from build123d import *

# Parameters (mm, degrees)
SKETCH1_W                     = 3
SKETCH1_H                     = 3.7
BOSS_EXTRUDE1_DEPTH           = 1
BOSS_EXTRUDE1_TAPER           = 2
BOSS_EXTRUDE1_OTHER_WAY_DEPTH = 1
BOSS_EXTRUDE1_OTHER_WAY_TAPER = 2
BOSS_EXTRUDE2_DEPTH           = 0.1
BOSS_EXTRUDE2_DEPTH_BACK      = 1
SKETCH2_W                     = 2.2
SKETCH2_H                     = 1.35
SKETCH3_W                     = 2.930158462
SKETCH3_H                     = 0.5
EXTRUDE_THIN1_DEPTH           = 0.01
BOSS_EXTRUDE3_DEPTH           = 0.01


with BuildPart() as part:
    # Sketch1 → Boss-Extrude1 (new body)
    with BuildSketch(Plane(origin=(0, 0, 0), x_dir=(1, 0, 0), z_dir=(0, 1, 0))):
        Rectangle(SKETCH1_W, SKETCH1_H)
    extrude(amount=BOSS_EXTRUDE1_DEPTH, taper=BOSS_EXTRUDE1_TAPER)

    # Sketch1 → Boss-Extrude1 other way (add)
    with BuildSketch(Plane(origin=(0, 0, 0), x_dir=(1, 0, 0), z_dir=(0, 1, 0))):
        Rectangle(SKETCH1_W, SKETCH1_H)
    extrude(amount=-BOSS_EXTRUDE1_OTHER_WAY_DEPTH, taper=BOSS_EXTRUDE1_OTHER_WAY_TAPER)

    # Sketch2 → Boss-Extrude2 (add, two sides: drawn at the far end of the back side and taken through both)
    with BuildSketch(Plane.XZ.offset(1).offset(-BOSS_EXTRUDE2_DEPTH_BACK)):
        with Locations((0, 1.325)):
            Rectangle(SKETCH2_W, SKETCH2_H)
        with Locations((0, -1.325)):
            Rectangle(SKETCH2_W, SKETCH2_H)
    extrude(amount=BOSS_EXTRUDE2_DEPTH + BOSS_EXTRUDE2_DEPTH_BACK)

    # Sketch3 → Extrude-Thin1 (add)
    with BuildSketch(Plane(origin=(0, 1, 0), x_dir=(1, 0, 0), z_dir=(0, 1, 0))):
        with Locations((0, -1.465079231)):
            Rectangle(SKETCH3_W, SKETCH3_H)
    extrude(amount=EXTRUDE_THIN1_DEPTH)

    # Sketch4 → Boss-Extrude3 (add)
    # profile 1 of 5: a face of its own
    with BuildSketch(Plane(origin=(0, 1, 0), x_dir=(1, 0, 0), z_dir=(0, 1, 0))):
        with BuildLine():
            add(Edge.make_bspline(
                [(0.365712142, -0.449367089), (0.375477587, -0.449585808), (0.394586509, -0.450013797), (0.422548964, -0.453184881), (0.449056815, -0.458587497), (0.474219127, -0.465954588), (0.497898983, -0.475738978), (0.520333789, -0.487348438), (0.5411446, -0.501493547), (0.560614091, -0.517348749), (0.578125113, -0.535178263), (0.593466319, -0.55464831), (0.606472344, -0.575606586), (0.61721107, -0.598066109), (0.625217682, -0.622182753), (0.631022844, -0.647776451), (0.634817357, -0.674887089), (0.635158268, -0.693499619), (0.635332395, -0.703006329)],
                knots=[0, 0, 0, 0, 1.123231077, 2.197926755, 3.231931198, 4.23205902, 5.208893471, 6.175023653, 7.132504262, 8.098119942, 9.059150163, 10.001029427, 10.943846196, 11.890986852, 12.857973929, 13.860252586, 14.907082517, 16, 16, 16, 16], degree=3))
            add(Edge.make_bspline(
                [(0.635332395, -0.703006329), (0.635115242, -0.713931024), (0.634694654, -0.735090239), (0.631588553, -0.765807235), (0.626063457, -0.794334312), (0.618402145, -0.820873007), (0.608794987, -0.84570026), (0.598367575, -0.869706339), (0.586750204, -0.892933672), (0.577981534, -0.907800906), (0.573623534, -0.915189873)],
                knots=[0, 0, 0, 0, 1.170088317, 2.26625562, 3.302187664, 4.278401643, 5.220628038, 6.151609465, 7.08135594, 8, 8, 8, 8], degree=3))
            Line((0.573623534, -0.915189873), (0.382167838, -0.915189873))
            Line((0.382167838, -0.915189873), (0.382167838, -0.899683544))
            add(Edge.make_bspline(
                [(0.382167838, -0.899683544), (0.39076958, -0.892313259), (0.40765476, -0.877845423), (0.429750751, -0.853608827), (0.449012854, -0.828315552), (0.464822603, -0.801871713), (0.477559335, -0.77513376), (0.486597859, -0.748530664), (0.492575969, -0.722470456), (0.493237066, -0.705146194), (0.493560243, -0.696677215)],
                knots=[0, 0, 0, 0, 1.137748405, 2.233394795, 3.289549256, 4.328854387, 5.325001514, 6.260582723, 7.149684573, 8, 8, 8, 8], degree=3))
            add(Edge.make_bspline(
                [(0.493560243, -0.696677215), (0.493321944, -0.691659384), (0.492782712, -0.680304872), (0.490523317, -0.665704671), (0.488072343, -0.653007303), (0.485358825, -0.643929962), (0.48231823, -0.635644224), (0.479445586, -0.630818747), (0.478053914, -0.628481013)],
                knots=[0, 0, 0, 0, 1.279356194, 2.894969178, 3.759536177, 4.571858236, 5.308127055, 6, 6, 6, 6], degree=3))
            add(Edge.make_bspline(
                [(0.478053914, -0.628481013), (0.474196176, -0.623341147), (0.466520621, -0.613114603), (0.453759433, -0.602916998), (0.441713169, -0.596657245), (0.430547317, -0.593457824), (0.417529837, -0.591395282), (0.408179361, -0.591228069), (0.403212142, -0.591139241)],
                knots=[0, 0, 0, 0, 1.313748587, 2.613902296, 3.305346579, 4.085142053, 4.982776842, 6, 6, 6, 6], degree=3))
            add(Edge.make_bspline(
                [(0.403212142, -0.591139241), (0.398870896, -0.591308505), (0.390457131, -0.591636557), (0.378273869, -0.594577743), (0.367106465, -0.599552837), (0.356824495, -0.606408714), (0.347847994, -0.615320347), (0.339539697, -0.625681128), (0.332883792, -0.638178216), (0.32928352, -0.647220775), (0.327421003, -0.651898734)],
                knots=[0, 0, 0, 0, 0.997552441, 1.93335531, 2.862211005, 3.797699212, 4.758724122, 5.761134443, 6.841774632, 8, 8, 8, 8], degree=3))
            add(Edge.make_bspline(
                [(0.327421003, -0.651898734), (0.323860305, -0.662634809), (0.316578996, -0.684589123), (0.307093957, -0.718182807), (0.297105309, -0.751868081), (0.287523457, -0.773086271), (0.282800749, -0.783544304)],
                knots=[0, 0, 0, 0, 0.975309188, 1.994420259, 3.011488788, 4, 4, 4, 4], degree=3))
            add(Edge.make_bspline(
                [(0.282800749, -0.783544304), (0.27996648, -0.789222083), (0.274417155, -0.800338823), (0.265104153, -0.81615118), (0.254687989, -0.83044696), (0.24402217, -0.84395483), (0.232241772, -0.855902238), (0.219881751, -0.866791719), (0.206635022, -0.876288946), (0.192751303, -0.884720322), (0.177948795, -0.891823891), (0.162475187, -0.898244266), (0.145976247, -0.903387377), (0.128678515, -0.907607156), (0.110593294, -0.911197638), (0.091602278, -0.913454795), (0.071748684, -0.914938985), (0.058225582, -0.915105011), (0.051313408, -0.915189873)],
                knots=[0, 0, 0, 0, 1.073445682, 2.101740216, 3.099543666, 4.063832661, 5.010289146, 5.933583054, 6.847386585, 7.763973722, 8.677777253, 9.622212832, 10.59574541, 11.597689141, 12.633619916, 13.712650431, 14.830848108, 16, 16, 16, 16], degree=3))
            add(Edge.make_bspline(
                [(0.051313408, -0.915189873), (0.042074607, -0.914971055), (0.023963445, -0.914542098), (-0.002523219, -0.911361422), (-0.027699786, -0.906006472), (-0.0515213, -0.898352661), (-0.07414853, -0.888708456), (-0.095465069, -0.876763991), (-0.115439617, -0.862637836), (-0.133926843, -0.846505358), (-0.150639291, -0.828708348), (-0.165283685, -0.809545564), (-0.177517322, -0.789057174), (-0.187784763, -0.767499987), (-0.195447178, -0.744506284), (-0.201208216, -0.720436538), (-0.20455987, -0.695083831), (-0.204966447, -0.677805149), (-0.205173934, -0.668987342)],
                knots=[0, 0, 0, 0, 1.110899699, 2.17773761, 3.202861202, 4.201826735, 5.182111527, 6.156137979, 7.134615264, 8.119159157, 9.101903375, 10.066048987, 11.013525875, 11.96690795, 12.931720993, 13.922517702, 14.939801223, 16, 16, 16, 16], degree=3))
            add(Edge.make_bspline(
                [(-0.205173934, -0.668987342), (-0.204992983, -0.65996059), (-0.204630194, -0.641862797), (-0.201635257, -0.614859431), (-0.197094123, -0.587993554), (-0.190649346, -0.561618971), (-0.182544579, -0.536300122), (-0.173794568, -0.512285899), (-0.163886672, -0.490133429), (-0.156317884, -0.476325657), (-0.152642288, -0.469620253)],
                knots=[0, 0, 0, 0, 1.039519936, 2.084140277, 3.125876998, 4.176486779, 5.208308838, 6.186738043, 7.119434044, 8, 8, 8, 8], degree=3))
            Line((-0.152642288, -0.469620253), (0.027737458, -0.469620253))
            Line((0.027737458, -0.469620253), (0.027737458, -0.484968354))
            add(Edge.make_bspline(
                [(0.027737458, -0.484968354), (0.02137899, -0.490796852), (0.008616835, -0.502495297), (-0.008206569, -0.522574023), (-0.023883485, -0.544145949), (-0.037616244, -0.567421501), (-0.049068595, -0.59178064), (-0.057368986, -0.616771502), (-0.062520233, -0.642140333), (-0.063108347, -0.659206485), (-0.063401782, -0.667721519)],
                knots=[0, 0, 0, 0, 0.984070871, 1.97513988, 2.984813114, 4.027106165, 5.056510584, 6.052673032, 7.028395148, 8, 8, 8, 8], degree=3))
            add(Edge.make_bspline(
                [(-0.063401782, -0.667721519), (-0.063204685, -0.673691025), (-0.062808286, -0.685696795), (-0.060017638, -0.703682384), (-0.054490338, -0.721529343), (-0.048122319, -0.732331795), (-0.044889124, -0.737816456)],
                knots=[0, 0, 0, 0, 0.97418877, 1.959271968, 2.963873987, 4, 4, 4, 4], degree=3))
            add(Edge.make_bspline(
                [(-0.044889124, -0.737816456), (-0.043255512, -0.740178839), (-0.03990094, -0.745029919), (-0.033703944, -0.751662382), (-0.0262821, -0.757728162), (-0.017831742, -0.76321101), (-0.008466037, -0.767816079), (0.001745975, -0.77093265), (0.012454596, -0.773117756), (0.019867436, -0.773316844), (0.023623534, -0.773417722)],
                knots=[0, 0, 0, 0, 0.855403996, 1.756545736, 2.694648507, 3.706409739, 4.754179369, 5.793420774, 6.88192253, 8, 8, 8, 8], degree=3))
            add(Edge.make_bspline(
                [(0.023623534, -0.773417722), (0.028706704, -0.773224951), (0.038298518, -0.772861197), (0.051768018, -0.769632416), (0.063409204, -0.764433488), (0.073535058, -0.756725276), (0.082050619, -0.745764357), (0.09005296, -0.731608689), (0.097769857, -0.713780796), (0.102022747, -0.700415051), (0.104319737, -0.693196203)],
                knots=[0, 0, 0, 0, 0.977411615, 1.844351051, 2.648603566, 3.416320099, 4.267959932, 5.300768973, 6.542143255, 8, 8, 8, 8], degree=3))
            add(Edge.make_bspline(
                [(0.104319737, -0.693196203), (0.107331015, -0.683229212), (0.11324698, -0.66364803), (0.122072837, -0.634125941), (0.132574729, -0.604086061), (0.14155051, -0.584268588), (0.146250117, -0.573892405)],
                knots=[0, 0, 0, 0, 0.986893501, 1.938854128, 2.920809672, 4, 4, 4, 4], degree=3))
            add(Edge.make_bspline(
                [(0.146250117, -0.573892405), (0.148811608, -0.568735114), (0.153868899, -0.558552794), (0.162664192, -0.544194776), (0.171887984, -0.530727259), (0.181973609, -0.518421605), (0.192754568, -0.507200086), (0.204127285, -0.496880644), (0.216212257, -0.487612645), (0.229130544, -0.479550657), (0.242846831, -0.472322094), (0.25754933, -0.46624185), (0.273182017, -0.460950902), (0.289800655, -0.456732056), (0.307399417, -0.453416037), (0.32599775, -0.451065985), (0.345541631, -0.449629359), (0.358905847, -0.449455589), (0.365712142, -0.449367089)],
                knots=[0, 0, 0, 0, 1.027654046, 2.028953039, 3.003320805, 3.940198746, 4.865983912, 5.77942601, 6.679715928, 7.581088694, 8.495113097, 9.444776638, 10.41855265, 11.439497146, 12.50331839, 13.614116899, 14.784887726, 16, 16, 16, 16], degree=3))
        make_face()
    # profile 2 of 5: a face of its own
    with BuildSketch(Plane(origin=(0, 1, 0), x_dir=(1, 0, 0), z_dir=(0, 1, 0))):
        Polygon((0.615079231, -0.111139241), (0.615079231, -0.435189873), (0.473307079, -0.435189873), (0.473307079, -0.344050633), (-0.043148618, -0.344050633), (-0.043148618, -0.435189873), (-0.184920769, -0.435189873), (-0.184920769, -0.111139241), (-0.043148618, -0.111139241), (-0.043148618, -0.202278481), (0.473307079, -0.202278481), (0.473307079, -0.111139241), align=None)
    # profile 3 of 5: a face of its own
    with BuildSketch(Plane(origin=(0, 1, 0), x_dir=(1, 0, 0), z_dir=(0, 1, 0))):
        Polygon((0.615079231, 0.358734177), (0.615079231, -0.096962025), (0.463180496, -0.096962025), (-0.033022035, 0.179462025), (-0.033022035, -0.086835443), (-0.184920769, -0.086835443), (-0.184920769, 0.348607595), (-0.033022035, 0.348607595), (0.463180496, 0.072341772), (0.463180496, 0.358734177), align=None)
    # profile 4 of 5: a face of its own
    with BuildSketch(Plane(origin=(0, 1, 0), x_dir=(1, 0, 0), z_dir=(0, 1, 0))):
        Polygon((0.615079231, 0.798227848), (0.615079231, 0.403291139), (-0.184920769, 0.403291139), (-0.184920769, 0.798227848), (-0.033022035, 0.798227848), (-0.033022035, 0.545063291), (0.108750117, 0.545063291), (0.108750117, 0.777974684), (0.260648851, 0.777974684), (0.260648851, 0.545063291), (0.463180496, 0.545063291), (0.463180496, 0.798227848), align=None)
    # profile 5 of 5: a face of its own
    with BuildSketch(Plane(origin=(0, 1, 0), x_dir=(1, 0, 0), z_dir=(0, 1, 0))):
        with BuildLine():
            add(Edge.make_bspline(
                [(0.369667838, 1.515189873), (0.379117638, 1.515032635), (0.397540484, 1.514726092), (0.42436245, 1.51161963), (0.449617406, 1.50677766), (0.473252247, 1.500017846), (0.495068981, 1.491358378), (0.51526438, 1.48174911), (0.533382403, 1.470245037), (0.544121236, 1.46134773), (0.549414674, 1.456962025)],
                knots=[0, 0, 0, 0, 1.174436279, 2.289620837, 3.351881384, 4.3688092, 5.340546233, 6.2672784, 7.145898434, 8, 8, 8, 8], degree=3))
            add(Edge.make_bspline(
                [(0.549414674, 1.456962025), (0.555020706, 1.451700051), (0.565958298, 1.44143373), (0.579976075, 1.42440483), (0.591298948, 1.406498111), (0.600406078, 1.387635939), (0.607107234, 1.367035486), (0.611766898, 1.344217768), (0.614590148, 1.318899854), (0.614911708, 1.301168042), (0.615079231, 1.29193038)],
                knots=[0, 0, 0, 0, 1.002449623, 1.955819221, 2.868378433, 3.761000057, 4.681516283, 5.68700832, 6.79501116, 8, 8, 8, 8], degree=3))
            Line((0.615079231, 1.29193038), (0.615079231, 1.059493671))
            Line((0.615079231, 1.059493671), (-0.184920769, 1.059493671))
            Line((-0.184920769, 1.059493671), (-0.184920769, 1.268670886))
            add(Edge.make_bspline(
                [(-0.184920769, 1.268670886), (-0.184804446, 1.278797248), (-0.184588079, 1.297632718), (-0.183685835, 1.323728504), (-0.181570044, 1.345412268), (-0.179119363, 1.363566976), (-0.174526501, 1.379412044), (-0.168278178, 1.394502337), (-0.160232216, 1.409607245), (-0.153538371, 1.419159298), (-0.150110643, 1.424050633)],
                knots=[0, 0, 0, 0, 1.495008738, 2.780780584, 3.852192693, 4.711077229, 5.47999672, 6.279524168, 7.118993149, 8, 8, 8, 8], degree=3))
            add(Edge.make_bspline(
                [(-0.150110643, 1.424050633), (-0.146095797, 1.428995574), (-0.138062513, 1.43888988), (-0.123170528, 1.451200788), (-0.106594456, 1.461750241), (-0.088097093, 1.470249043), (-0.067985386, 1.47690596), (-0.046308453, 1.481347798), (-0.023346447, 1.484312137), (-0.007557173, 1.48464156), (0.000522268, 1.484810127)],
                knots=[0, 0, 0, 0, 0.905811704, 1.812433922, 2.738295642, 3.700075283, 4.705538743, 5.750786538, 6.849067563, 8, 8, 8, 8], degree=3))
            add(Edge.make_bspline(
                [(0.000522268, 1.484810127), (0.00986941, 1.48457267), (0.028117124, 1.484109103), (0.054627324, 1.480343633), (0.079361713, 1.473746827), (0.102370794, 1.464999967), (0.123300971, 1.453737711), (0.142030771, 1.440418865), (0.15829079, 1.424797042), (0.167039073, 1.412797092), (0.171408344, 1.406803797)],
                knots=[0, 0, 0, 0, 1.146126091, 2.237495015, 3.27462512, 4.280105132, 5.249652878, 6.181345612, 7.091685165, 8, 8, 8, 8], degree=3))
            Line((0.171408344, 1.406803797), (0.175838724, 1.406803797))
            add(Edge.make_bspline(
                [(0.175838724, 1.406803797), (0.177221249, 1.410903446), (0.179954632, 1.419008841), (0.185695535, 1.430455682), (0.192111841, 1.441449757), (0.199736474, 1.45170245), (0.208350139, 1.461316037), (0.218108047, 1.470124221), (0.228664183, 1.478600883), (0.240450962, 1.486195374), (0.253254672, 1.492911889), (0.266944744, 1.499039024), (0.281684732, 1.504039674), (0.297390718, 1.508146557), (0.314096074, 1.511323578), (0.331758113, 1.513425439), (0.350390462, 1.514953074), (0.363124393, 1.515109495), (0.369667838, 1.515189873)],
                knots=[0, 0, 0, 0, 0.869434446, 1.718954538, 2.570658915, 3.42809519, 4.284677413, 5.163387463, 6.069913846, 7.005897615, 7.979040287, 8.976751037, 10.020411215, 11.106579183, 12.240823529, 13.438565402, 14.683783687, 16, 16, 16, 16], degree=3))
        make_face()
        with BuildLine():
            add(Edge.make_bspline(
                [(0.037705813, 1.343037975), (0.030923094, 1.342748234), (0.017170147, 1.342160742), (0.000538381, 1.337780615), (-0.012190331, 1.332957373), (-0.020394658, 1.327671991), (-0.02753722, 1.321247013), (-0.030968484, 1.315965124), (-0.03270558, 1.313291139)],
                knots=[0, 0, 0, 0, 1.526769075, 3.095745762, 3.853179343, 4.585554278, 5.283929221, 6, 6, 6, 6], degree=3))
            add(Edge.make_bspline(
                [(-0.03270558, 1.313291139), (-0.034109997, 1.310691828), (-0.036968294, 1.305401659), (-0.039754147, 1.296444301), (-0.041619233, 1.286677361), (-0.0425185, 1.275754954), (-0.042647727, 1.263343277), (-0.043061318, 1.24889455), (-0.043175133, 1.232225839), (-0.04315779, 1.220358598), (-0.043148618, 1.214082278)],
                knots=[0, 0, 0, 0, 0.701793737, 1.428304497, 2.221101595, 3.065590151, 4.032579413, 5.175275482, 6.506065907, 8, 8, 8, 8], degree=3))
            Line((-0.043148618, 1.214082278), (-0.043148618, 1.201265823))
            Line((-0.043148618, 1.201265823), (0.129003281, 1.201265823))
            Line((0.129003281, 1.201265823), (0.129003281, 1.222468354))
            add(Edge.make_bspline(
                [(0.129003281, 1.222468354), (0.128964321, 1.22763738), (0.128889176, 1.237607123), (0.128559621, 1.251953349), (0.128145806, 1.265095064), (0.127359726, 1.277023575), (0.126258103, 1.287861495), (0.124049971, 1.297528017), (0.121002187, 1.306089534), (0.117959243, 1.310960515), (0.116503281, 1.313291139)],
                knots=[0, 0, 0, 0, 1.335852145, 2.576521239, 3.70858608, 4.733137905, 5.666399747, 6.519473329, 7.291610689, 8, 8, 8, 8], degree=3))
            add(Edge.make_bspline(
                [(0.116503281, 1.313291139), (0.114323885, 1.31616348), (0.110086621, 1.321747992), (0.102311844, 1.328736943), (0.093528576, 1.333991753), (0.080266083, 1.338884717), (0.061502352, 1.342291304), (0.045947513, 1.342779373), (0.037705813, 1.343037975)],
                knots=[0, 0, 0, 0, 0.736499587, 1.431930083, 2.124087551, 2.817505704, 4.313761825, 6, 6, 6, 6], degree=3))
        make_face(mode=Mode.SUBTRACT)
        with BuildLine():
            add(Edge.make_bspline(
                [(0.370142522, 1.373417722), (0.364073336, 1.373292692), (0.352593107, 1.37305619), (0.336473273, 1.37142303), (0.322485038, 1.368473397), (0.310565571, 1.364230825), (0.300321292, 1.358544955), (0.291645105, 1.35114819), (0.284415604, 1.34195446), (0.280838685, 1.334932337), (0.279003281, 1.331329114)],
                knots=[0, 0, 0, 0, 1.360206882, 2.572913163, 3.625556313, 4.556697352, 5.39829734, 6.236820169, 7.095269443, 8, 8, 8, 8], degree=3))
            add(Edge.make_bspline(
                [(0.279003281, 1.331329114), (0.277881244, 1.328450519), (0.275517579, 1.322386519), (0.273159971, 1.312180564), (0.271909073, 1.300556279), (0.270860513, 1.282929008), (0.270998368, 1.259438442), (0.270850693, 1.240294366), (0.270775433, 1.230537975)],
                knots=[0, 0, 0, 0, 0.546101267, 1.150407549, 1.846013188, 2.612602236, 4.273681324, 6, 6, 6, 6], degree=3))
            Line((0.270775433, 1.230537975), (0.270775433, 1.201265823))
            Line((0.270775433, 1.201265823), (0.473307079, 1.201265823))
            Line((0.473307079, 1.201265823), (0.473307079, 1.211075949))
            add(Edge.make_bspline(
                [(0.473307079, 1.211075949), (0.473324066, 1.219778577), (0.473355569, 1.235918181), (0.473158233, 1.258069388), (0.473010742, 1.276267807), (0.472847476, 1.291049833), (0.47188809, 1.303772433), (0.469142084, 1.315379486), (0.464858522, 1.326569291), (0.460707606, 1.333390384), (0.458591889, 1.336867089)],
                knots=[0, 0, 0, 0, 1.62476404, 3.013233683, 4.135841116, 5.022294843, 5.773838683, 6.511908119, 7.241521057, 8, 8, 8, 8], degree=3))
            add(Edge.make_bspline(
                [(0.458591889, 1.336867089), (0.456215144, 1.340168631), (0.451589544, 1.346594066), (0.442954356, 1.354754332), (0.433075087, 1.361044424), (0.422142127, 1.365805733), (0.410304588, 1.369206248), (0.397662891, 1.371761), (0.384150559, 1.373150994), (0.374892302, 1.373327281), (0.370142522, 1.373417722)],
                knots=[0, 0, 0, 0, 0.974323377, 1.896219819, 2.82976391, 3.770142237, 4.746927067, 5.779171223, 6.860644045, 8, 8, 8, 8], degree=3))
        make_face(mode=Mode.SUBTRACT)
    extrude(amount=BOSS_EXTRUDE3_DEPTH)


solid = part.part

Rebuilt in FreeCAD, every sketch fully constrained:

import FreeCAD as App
import Part
import Sketcher
Q = App.Units.Quantity


def add_polygon(sketch, points):
    """Adds a closed chain of lines whose ends are joined by coincident constraints."""
    first, n = sketch.GeometryCount, len(points)
    for a, b in zip(points, points[1:] + points[:1]):
        sketch.addGeometry(Part.LineSegment(App.Vector(*a, 0), App.Vector(*b, 0)), False)
    for i in range(n):
        sketch.addConstraint(Sketcher.Constraint("Coincident", first + i, 2, first + (i + 1) % n, 1))

doc = App.newDocument("Part")
body = doc.addObject("PartDesign::Body", "Body")

sketch1 = body.newObject("Sketcher::SketchObject", "Sketch")
sketch1.AttachmentSupport = (doc.getObject("XZ_Plane"), [""])
sketch1.MapMode = "FlatFace"
add_polygon(sketch1, [(-1.5, -1.9), (-1.5, 1.9), (1.5, 1.9), (1.5, -1.9)])
sketch1.addConstraint([
    Sketcher.Constraint("Vertical", 0),
    Sketcher.Constraint("Horizontal", 1),
    Sketcher.Constraint("Vertical", 2),
    Sketcher.Constraint("Horizontal", 3),
    Sketcher.Constraint("Symmetric", 0, 2, 2, 2, -1, 1),
    Sketcher.Constraint("DistanceX", 1, 1, 1, 2, Q("3 mm")),
    Sketcher.Constraint("DistanceY", 0, 1, 0, 2, Q("3.7 mm")),
])
pad1 = body.newObject("PartDesign::Pad", "Pad")
pad1.Profile = sketch1
pad1.Length = 1
pad1.Reversed = True
pad1.TaperAngle = -2

sketch2 = body.newObject("Sketcher::SketchObject", "Sketch001")
sketch2.AttachmentSupport = (doc.getObject("XZ_Plane"), [""])
sketch2.MapMode = "FlatFace"
add_polygon(sketch2, [(-1.5, -1.9), (-1.5, 1.9), (1.5, 1.9), (1.5, -1.9)])
sketch2.addConstraint([
    Sketcher.Constraint("Vertical", 0),
    Sketcher.Constraint("Horizontal", 1),
    Sketcher.Constraint("Vertical", 2),
    Sketcher.Constraint("Horizontal", 3),
    Sketcher.Constraint("Symmetric", 0, 2, 2, 2, -1, 1),
    Sketcher.Constraint("DistanceX", 1, 1, 1, 2, Q("3 mm")),
    Sketcher.Constraint("DistanceY", 0, 1, 0, 2, Q("3.7 mm")),
])
pad2 = body.newObject("PartDesign::Pad", "Pad001")
pad2.Profile = sketch2
pad2.Length = 1
pad2.TaperAngle = -2

sketch3 = body.newObject("Sketcher::SketchObject", "Sketch002")
sketch3.AttachmentSupport = (doc.getObject("XZ_Plane"), [""])
sketch3.MapMode = "FlatFace"
sketch3.AttachmentOffset = App.Placement(App.Vector(0, 0, 1), App.Rotation())
add_polygon(sketch3, [(-1.1, 2), (-1.1, 0.7), (1.1, 0.7), (1.1, 2)])
add_polygon(sketch3, [(-1.1, -0.7), (-1.1, -2), (1.1, -2), (1.1, -0.7)])
sketch3.addConstraint([
    Sketcher.Constraint("Vertical", 0),
    Sketcher.Constraint("Horizontal", 1),
    Sketcher.Constraint("Vertical", 2),
    Sketcher.Constraint("Horizontal", 3),
    Sketcher.Constraint("Vertical", 4),
    Sketcher.Constraint("Horizontal", 5),
    Sketcher.Constraint("Vertical", 6),
    Sketcher.Constraint("Horizontal", 7),
    Sketcher.Constraint("Symmetric", 2, 2, 4, 2, -1, 1),
    Sketcher.Constraint("Symmetric", 0, 2, 6, 2, -1, 1),
    Sketcher.Constraint("Vertical", 3, 2, 4, 2),
    Sketcher.Constraint("DistanceX", 1, 1, 1, 2, Q("2.2 mm")),
    Sketcher.Constraint("DistanceY", -1, 1, 2, 2, Q("2 mm")),
    Sketcher.Constraint("DistanceY", 0, 2, 0, 1, Q("1.35 mm")),
])
pad3 = body.newObject("PartDesign::Pad", "Pad002")
pad3.Profile = sketch3
pad3.Type = "TwoLengths"
pad3.Length = 0.1
pad3.Length2 = 1

sketch4 = body.newObject("Sketcher::SketchObject", "Sketch003")
sketch4.AttachmentSupport = (doc.getObject("XZ_Plane"), [""])
sketch4.MapMode = "FlatFace"
sketch4.AttachmentOffset = App.Placement(App.Vector(0, 0, -1), App.Rotation())
add_polygon(sketch4, [(-1.5, 1.2), (-1.5, 1.7), (1.5, 1.7), (1.5, 1.2)])
sketch4.addConstraint([
    Sketcher.Constraint("Vertical", 0),
    Sketcher.Constraint("Horizontal", 1),
    Sketcher.Constraint("Vertical", 2),
    Sketcher.Constraint("Horizontal", 3),
    Sketcher.Constraint("DistanceY", 0, 1, 0, 2, Q("0.5 mm")),
    Sketcher.Constraint("DistanceX", 1, 1, 1, 2, Q("2.930158 mm")),
    Sketcher.Constraint("DistanceX", 0, 2, -1, 1, Q("1.465079 mm")),
    Sketcher.Constraint("DistanceY", -1, 1, 0, 2, Q("1.715079 mm")),
])
pad4 = body.newObject("PartDesign::Pad", "Pad003")
pad4.Profile = sketch4
pad4.Length = 0.01
pad4.Reversed = True

sketch5 = body.newObject("Sketcher::SketchObject", "Sketch004")
sketch5.AttachmentSupport = (doc.getObject("XZ_Plane"), [""])
sketch5.MapMode = "FlatFace"
sketch5.AttachmentOffset = App.Placement(App.Vector(0, 0, -1), App.Rotation())
sketch5.addGeometry(Part.BSplineCurve([App.Vector(0.365712, 0.449367, 0), App.Vector(0.375478, 0.449586, 0), App.Vector(0.394587, 0.450014, 0), App.Vector(0.422549, 0.453185, 0), App.Vector(0.449057, 0.458587, 0), App.Vector(0.474219, 0.465955, 0), App.Vector(0.497899, 0.475739, 0), App.Vector(0.520334, 0.487348, 0), App.Vector(0.541145, 0.501494, 0), App.Vector(0.560614, 0.517349, 0), App.Vector(0.578125, 0.535178, 0), App.Vector(0.593466, 0.554648, 0), App.Vector(0.606472, 0.575607, 0), App.Vector(0.617211, 0.598066, 0), App.Vector(0.625218, 0.622183, 0), App.Vector(0.631023, 0.647776, 0), App.Vector(0.634817, 0.674887, 0), App.Vector(0.635158, 0.6935, 0), App.Vector(0.635332, 0.703006, 0)], [4, 1, 1, 1, 1, 1, 1, 1, 1, 1, 1, 1, 1, 1, 1, 1, 4], [0, 1.123231077, 2.197926755, 3.231931198, 4.23205902, 5.208893471, 6.175023653, 7.132504262, 8.098119942, 9.059150163, 10.001029427, 10.943846196, 11.890986852, 12.857973929, 13.860252586, 14.907082517, 16], False, 3, [1, 1, 1, 1, 1, 1, 1, 1, 1, 1, 1, 1, 1, 1, 1, 1, 1, 1, 1], False), False)
sketch5.addGeometry(Part.BSplineCurve([App.Vector(0.14625, 0.573892, 0), App.Vector(0.148812, 0.568735, 0), App.Vector(0.153869, 0.558553, 0), App.Vector(0.162664, 0.544195, 0), App.Vector(0.171888, 0.530727, 0), App.Vector(0.181974, 0.518422, 0), App.Vector(0.192755, 0.5072, 0), App.Vector(0.204127, 0.496881, 0), App.Vector(0.216212, 0.487613, 0), App.Vector(0.229131, 0.479551, 0), App.Vector(0.242847, 0.472322, 0), App.Vector(0.257549, 0.466242, 0), App.Vector(0.273182, 0.460951, 0), App.Vector(0.289801, 0.456732, 0), App.Vector(0.307399, 0.453416, 0), App.Vector(0.325998, 0.451066, 0), App.Vector(0.345542, 0.449629, 0), App.Vector(0.358906, 0.449456, 0), App.Vector(0.365712, 0.449367, 0)], [4, 1, 1, 1, 1, 1, 1, 1, 1, 1, 1, 1, 1, 1, 1, 1, 4], [0, 1.027654046, 2.028953039, 3.003320805, 3.940198746, 4.865983912, 5.77942601, 6.679715928, 7.581088694, 8.495113097, 9.444776638, 10.41855265, 11.439497146, 12.50331839, 13.614116899, 14.784887726, 16], False, 3, [1, 1, 1, 1, 1, 1, 1, 1, 1, 1, 1, 1, 1, 1, 1, 1, 1, 1, 1], False), False)
sketch5.addGeometry(Part.BSplineCurve([App.Vector(0.10432, 0.693196, 0), App.Vector(0.107331, 0.683229, 0), App.Vector(0.113247, 0.663648, 0), App.Vector(0.122073, 0.634126, 0), App.Vector(0.132575, 0.604086, 0), App.Vector(0.141551, 0.584269, 0), App.Vector(0.14625, 0.573892, 0)], [4, 1, 1, 1, 4], [0, 0.986893501, 1.938854128, 2.920809672, 4], False, 3, [1, 1, 1, 1, 1, 1, 1], False), False)
sketch5.addGeometry(Part.BSplineCurve([App.Vector(0.023624, 0.773418, 0), App.Vector(0.028707, 0.773225, 0), App.Vector(0.038299, 0.772861, 0), App.Vector(0.051768, 0.769632, 0), App.Vector(0.063409, 0.764433, 0), App.Vector(0.073535, 0.756725, 0), App.Vector(0.082051, 0.745764, 0), App.Vector(0.090053, 0.731609, 0), App.Vector(0.09777, 0.713781, 0), App.Vector(0.102023, 0.700415, 0), App.Vector(0.10432, 0.693196, 0)], [4, 1, 1, 1, 1, 1, 1, 1, 4], [0, 0.977411615, 1.844351051, 2.648603566, 3.416320099, 4.267959932, 5.300768973, 6.542143255, 8], False, 3, [1, 1, 1, 1, 1, 1, 1, 1, 1, 1, 1], False), False)
sketch5.addGeometry(Part.BSplineCurve([App.Vector(-0.044889, 0.737816, 0), App.Vector(-0.043256, 0.740179, 0), App.Vector(-0.039901, 0.74503, 0), App.Vector(-0.033704, 0.751662, 0), App.Vector(-0.026282, 0.757728, 0), App.Vector(-0.017832, 0.763211, 0), App.Vector(-0.008466, 0.767816, 0), App.Vector(0.001746, 0.770933, 0), App.Vector(0.012455, 0.773118, 0), App.Vector(0.019867, 0.773317, 0), App.Vector(0.023624, 0.773418, 0)], [4, 1, 1, 1, 1, 1, 1, 1, 4], [0, 0.855403996, 1.756545736, 2.694648507, 3.706409739, 4.754179369, 5.793420774, 6.88192253, 8], False, 3, [1, 1, 1, 1, 1, 1, 1, 1, 1, 1, 1], False), False)
sketch5.addGeometry(Part.BSplineCurve([App.Vector(-0.063402, 0.667722, 0), App.Vector(-0.063205, 0.673691, 0), App.Vector(-0.062808, 0.685697, 0), App.Vector(-0.060018, 0.703682, 0), App.Vector(-0.05449, 0.721529, 0), App.Vector(-0.048122, 0.732332, 0), App.Vector(-0.044889, 0.737816, 0)], [4, 1, 1, 1, 4], [0, 0.97418877, 1.959271968, 2.963873987, 4], False, 3, [1, 1, 1, 1, 1, 1, 1], False), False)
sketch5.addGeometry(Part.BSplineCurve([App.Vector(0.027737, 0.484968, 0), App.Vector(0.021379, 0.490797, 0), App.Vector(0.008617, 0.502495, 0), App.Vector(-0.008207, 0.522574, 0), App.Vector(-0.023883, 0.544146, 0), App.Vector(-0.037616, 0.567422, 0), App.Vector(-0.049069, 0.591781, 0), App.Vector(-0.057369, 0.616772, 0), App.Vector(-0.06252, 0.64214, 0), App.Vector(-0.063108, 0.659206, 0), App.Vector(-0.063402, 0.667722, 0)], [4, 1, 1, 1, 1, 1, 1, 1, 4], [0, 0.984070871, 1.97513988, 2.984813114, 4.027106165, 5.056510584, 6.052673032, 7.028395148, 8], False, 3, [1, 1, 1, 1, 1, 1, 1, 1, 1, 1, 1], False), False)
sketch5.addGeometry(Part.LineSegment(App.Vector(0.027737, 0.484968, 0), App.Vector(0.027737, 0.46962, 0)), False)
sketch5.addGeometry(Part.LineSegment(App.Vector(0.027737, 0.46962, 0), App.Vector(-0.152642, 0.46962, 0)), False)
sketch5.addGeometry(Part.BSplineCurve([App.Vector(-0.205174, 0.668987, 0), App.Vector(-0.204993, 0.659961, 0), App.Vector(-0.20463, 0.641863, 0), App.Vector(-0.201635, 0.614859, 0), App.Vector(-0.197094, 0.587994, 0), App.Vector(-0.190649, 0.561619, 0), App.Vector(-0.182545, 0.5363, 0), App.Vector(-0.173795, 0.512286, 0), App.Vector(-0.163887, 0.490133, 0), App.Vector(-0.156318, 0.476326, 0), App.Vector(-0.152642, 0.46962, 0)], [4, 1, 1, 1, 1, 1, 1, 1, 4], [0, 1.039519936, 2.084140277, 3.125876998, 4.176486779, 5.208308838, 6.186738043, 7.119434044, 8], False, 3, [1, 1, 1, 1, 1, 1, 1, 1, 1, 1, 1], False), False)
sketch5.addGeometry(Part.BSplineCurve([App.Vector(0.051313, 0.91519, 0), App.Vector(0.042075, 0.914971, 0), App.Vector(0.023963, 0.914542, 0), App.Vector(-0.002523, 0.911361, 0), App.Vector(-0.0277, 0.906006, 0), App.Vector(-0.051521, 0.898353, 0), App.Vector(-0.074149, 0.888708, 0), App.Vector(-0.095465, 0.876764, 0), App.Vector(-0.11544, 0.862638, 0), App.Vector(-0.133927, 0.846505, 0), App.Vector(-0.150639, 0.828708, 0), App.Vector(-0.165284, 0.809546, 0), App.Vector(-0.177517, 0.789057, 0), App.Vector(-0.187785, 0.7675, 0), App.Vector(-0.195447, 0.744506, 0), App.Vector(-0.201208, 0.720437, 0), App.Vector(-0.20456, 0.695084, 0), App.Vector(-0.204966, 0.677805, 0), App.Vector(-0.205174, 0.668987, 0)], [4, 1, 1, 1, 1, 1, 1, 1, 1, 1, 1, 1, 1, 1, 1, 1, 4], [0, 1.110899699, 2.17773761, 3.202861202, 4.201826735, 5.182111527, 6.156137979, 7.134615264, 8.119159157, 9.101903375, 10.066048987, 11.013525875, 11.96690795, 12.931720993, 13.922517702, 14.939801223, 16], False, 3, [1, 1, 1, 1, 1, 1, 1, 1, 1, 1, 1, 1, 1, 1, 1, 1, 1, 1, 1], False), False)
sketch5.addGeometry(Part.BSplineCurve([App.Vector(0.282801, 0.783544, 0), App.Vector(0.279966, 0.789222, 0), App.Vector(0.274417, 0.800339, 0), App.Vector(0.265104, 0.816151, 0), App.Vector(0.254688, 0.830447, 0), App.Vector(0.244022, 0.843955, 0), App.Vector(0.232242, 0.855902, 0), App.Vector(0.219882, 0.866792, 0), App.Vector(0.206635, 0.876289, 0), App.Vector(0.192751, 0.88472, 0), App.Vector(0.177949, 0.891824, 0), App.Vector(0.162475, 0.898244, 0), App.Vector(0.145976, 0.903387, 0), App.Vector(0.128679, 0.907607, 0), App.Vector(0.110593, 0.911198, 0), App.Vector(0.091602, 0.913455, 0), App.Vector(0.071749, 0.914939, 0), App.Vector(0.058226, 0.915105, 0), App.Vector(0.051313, 0.91519, 0)], [4, 1, 1, 1, 1, 1, 1, 1, 1, 1, 1, 1, 1, 1, 1, 1, 4], [0, 1.073445682, 2.101740216, 3.099543666, 4.063832661, 5.010289146, 5.933583054, 6.847386585, 7.763973722, 8.677777253, 9.622212832, 10.59574541, 11.597689141, 12.633619916, 13.712650431, 14.830848108, 16], False, 3, [1, 1, 1, 1, 1, 1, 1, 1, 1, 1, 1, 1, 1, 1, 1, 1, 1, 1, 1], False), False)
sketch5.addGeometry(Part.BSplineCurve([App.Vector(0.327421, 0.651899, 0), App.Vector(0.32386, 0.662635, 0), App.Vector(0.316579, 0.684589, 0), App.Vector(0.307094, 0.718183, 0), App.Vector(0.297105, 0.751868, 0), App.Vector(0.287523, 0.773086, 0), App.Vector(0.282801, 0.783544, 0)], [4, 1, 1, 1, 4], [0, 0.975309188, 1.994420259, 3.011488788, 4], False, 3, [1, 1, 1, 1, 1, 1, 1], False), False)
sketch5.addGeometry(Part.BSplineCurve([App.Vector(0.403212, 0.591139, 0), App.Vector(0.398871, 0.591309, 0), App.Vector(0.390457, 0.591637, 0), App.Vector(0.378274, 0.594578, 0), App.Vector(0.367106, 0.599553, 0), App.Vector(0.356824, 0.606409, 0), App.Vector(0.347848, 0.61532, 0), App.Vector(0.33954, 0.625681, 0), App.Vector(0.332884, 0.638178, 0), App.Vector(0.329284, 0.647221, 0), App.Vector(0.327421, 0.651899, 0)], [4, 1, 1, 1, 1, 1, 1, 1, 4], [0, 0.997552441, 1.93335531, 2.862211005, 3.797699212, 4.758724122, 5.761134443, 6.841774632, 8], False, 3, [1, 1, 1, 1, 1, 1, 1, 1, 1, 1, 1], False), False)
sketch5.addGeometry(Part.BSplineCurve([App.Vector(0.478054, 0.628481, 0), App.Vector(0.474196, 0.623341, 0), App.Vector(0.466521, 0.613115, 0), App.Vector(0.453759, 0.602917, 0), App.Vector(0.441713, 0.596657, 0), App.Vector(0.430547, 0.593458, 0), App.Vector(0.41753, 0.591395, 0), App.Vector(0.408179, 0.591228, 0), App.Vector(0.403212, 0.591139, 0)], [4, 1, 1, 1, 1, 1, 4], [0, 1.313748587, 2.613902296, 3.305346579, 4.085142053, 4.982776842, 6], False, 3, [1, 1, 1, 1, 1, 1, 1, 1, 1], False), False)
sketch5.addGeometry(Part.BSplineCurve([App.Vector(0.49356, 0.696677, 0), App.Vector(0.493322, 0.691659, 0), App.Vector(0.492783, 0.680305, 0), App.Vector(0.490523, 0.665705, 0), App.Vector(0.488072, 0.653007, 0), App.Vector(0.485359, 0.64393, 0), App.Vector(0.482318, 0.635644, 0), App.Vector(0.479446, 0.630819, 0), App.Vector(0.478054, 0.628481, 0)], [4, 1, 1, 1, 1, 1, 4], [0, 1.279356194, 2.894969178, 3.759536177, 4.571858236, 5.308127055, 6], False, 3, [1, 1, 1, 1, 1, 1, 1, 1, 1], False), False)
sketch5.addGeometry(Part.BSplineCurve([App.Vector(0.382168, 0.899684, 0), App.Vector(0.39077, 0.892313, 0), App.Vector(0.407655, 0.877845, 0), App.Vector(0.429751, 0.853609, 0), App.Vector(0.449013, 0.828316, 0), App.Vector(0.464823, 0.801872, 0), App.Vector(0.477559, 0.775134, 0), App.Vector(0.486598, 0.748531, 0), App.Vector(0.492576, 0.72247, 0), App.Vector(0.493237, 0.705146, 0), App.Vector(0.49356, 0.696677, 0)], [4, 1, 1, 1, 1, 1, 1, 1, 4], [0, 1.137748405, 2.233394795, 3.289549256, 4.328854387, 5.325001514, 6.260582723, 7.149684573, 8], False, 3, [1, 1, 1, 1, 1, 1, 1, 1, 1, 1, 1], False), False)
sketch5.addGeometry(Part.LineSegment(App.Vector(0.382168, 0.899684, 0), App.Vector(0.382168, 0.91519, 0)), False)
sketch5.addGeometry(Part.LineSegment(App.Vector(0.382168, 0.91519, 0), App.Vector(0.573624, 0.91519, 0)), False)
sketch5.addGeometry(Part.BSplineCurve([App.Vector(0.635332, 0.703006, 0), App.Vector(0.635115, 0.713931, 0), App.Vector(0.634695, 0.73509, 0), App.Vector(0.631589, 0.765807, 0), App.Vector(0.626063, 0.794334, 0), App.Vector(0.618402, 0.820873, 0), App.Vector(0.608795, 0.8457, 0), App.Vector(0.598368, 0.869706, 0), App.Vector(0.58675, 0.892934, 0), App.Vector(0.577982, 0.907801, 0), App.Vector(0.573624, 0.91519, 0)], [4, 1, 1, 1, 1, 1, 1, 1, 4], [0, 1.170088317, 2.26625562, 3.302187664, 4.278401643, 5.220628038, 6.151609465, 7.08135594, 8], False, 3, [1, 1, 1, 1, 1, 1, 1, 1, 1, 1, 1], False), False)
add_polygon(sketch5, [(0.615079, 0.43519), (0.615079, 0.111139), (0.473307, 0.111139), (0.473307, 0.202278), (-0.043149, 0.202278), (-0.043149, 0.111139), (-0.184921, 0.111139), (-0.184921, 0.43519), (-0.043149, 0.43519), (-0.043149, 0.344051), (0.473307, 0.344051), (0.473307, 0.43519)])
add_polygon(sketch5, [(0.615079, 0.096962), (0.615079, -0.358734), (0.46318, -0.358734), (0.46318, -0.072342), (-0.033022, -0.348608), (-0.184921, -0.348608), (-0.184921, 0.086835), (-0.033022, 0.086835), (-0.033022, -0.179462), (0.46318, 0.096962)])
add_polygon(sketch5, [(0.615079, -0.403291), (0.615079, -0.798228), (0.46318, -0.798228), (0.46318, -0.545063), (0.260649, -0.545063), (0.260649, -0.777975), (0.10875, -0.777975), (0.10875, -0.545063), (-0.033022, -0.545063), (-0.033022, -0.798228), (-0.184921, -0.798228), (-0.184921, -0.403291)])
sketch5.addGeometry(Part.BSplineCurve([App.Vector(0.369668, -1.51519, 0), App.Vector(0.379118, -1.515033, 0), App.Vector(0.39754, -1.514726, 0), App.Vector(0.424362, -1.51162, 0), App.Vector(0.449617, -1.506778, 0), App.Vector(0.473252, -1.500018, 0), App.Vector(0.495069, -1.491358, 0), App.Vector(0.515264, -1.481749, 0), App.Vector(0.533382, -1.470245, 0), App.Vector(0.544121, -1.461348, 0), App.Vector(0.549415, -1.456962, 0)], [4, 1, 1, 1, 1, 1, 1, 1, 4], [0, 1.174436279, 2.289620837, 3.351881384, 4.3688092, 5.340546233, 6.2672784, 7.145898434, 8], False, 3, [1, 1, 1, 1, 1, 1, 1, 1, 1, 1, 1], False), False)
sketch5.addGeometry(Part.BSplineCurve([App.Vector(0.175839, -1.406804, 0), App.Vector(0.177221, -1.410903, 0), App.Vector(0.179955, -1.419009, 0), App.Vector(0.185696, -1.430456, 0), App.Vector(0.192112, -1.44145, 0), App.Vector(0.199736, -1.451702, 0), App.Vector(0.20835, -1.461316, 0), App.Vector(0.218108, -1.470124, 0), App.Vector(0.228664, -1.478601, 0), App.Vector(0.240451, -1.486195, 0), App.Vector(0.253255, -1.492912, 0), App.Vector(0.266945, -1.499039, 0), App.Vector(0.281685, -1.50404, 0), App.Vector(0.297391, -1.508147, 0), App.Vector(0.314096, -1.511324, 0), App.Vector(0.331758, -1.513425, 0), App.Vector(0.35039, -1.514953, 0), App.Vector(0.363124, -1.515109, 0), App.Vector(0.369668, -1.51519, 0)], [4, 1, 1, 1, 1, 1, 1, 1, 1, 1, 1, 1, 1, 1, 1, 1, 4], [0, 0.869434446, 1.718954538, 2.570658915, 3.42809519, 4.284677413, 5.163387463, 6.069913846, 7.005897615, 7.979040287, 8.976751037, 10.020411215, 11.106579183, 12.240823529, 13.438565402, 14.683783687, 16], False, 3, [1, 1, 1, 1, 1, 1, 1, 1, 1, 1, 1, 1, 1, 1, 1, 1, 1, 1, 1], False), False)
sketch5.addGeometry(Part.LineSegment(App.Vector(0.175839, -1.406804, 0), App.Vector(0.171408, -1.406804, 0)), False)
sketch5.addGeometry(Part.BSplineCurve([App.Vector(0.000522, -1.48481, 0), App.Vector(0.009869, -1.484573, 0), App.Vector(0.028117, -1.484109, 0), App.Vector(0.054627, -1.480344, 0), App.Vector(0.079362, -1.473747, 0), App.Vector(0.102371, -1.465, 0), App.Vector(0.123301, -1.453738, 0), App.Vector(0.142031, -1.440419, 0), App.Vector(0.158291, -1.424797, 0), App.Vector(0.167039, -1.412797, 0), App.Vector(0.171408, -1.406804, 0)], [4, 1, 1, 1, 1, 1, 1, 1, 4], [0, 1.146126091, 2.237495015, 3.27462512, 4.280105132, 5.249652878, 6.181345612, 7.091685165, 8], False, 3, [1, 1, 1, 1, 1, 1, 1, 1, 1, 1, 1], False), False)
sketch5.addGeometry(Part.BSplineCurve([App.Vector(-0.150111, -1.424051, 0), App.Vector(-0.146096, -1.428996, 0), App.Vector(-0.138063, -1.43889, 0), App.Vector(-0.123171, -1.451201, 0), App.Vector(-0.106594, -1.46175, 0), App.Vector(-0.088097, -1.470249, 0), App.Vector(-0.067985, -1.476906, 0), App.Vector(-0.046308, -1.481348, 0), App.Vector(-0.023346, -1.484312, 0), App.Vector(-0.007557, -1.484642, 0), App.Vector(0.000522, -1.48481, 0)], [4, 1, 1, 1, 1, 1, 1, 1, 4], [0, 0.905811704, 1.812433922, 2.738295642, 3.700075283, 4.705538743, 5.750786538, 6.849067563, 8], False, 3, [1, 1, 1, 1, 1, 1, 1, 1, 1, 1, 1], False), False)
sketch5.addGeometry(Part.BSplineCurve([App.Vector(-0.184921, -1.268671, 0), App.Vector(-0.184804, -1.278797, 0), App.Vector(-0.184588, -1.297633, 0), App.Vector(-0.183686, -1.323729, 0), App.Vector(-0.18157, -1.345412, 0), App.Vector(-0.179119, -1.363567, 0), App.Vector(-0.174527, -1.379412, 0), App.Vector(-0.168278, -1.394502, 0), App.Vector(-0.160232, -1.409607, 0), App.Vector(-0.153538, -1.419159, 0), App.Vector(-0.150111, -1.424051, 0)], [4, 1, 1, 1, 1, 1, 1, 1, 4], [0, 1.495008738, 2.780780584, 3.852192693, 4.711077229, 5.47999672, 6.279524168, 7.118993149, 8], False, 3, [1, 1, 1, 1, 1, 1, 1, 1, 1, 1, 1], False), False)
sketch5.addGeometry(Part.LineSegment(App.Vector(-0.184921, -1.268671, 0), App.Vector(-0.184921, -1.059494, 0)), False)
sketch5.addGeometry(Part.LineSegment(App.Vector(-0.184921, -1.059494, 0), App.Vector(0.615079, -1.059494, 0)), False)
sketch5.addGeometry(Part.LineSegment(App.Vector(0.615079, -1.059494, 0), App.Vector(0.615079, -1.29193, 0)), False)
sketch5.addGeometry(Part.BSplineCurve([App.Vector(0.549415, -1.456962, 0), App.Vector(0.555021, -1.4517, 0), App.Vector(0.565958, -1.441434, 0), App.Vector(0.579976, -1.424405, 0), App.Vector(0.591299, -1.406498, 0), App.Vector(0.600406, -1.387636, 0), App.Vector(0.607107, -1.367035, 0), App.Vector(0.611767, -1.344218, 0), App.Vector(0.61459, -1.3189, 0), App.Vector(0.614912, -1.301168, 0), App.Vector(0.615079, -1.29193, 0)], [4, 1, 1, 1, 1, 1, 1, 1, 4], [0, 1.002449623, 1.955819221, 2.868378433, 3.761000057, 4.681516283, 5.68700832, 6.79501116, 8], False, 3, [1, 1, 1, 1, 1, 1, 1, 1, 1, 1, 1], False), False)
sketch5.addGeometry(Part.BSplineCurve([App.Vector(0.458592, -1.336867, 0), App.Vector(0.456215, -1.340169, 0), App.Vector(0.45159, -1.346594, 0), App.Vector(0.442954, -1.354754, 0), App.Vector(0.433075, -1.361044, 0), App.Vector(0.422142, -1.365806, 0), App.Vector(0.410305, -1.369206, 0), App.Vector(0.397663, -1.371761, 0), App.Vector(0.384151, -1.373151, 0), App.Vector(0.374892, -1.373327, 0), App.Vector(0.370143, -1.373418, 0)], [4, 1, 1, 1, 1, 1, 1, 1, 4], [0, 0.974323377, 1.896219819, 2.82976391, 3.770142237, 4.746927067, 5.779171223, 6.860644045, 8], False, 3, [1, 1, 1, 1, 1, 1, 1, 1, 1, 1, 1], False), False)
sketch5.addGeometry(Part.BSplineCurve([App.Vector(0.473307, -1.211076, 0), App.Vector(0.473324, -1.219779, 0), App.Vector(0.473356, -1.235918, 0), App.Vector(0.473158, -1.258069, 0), App.Vector(0.473011, -1.276268, 0), App.Vector(0.472847, -1.29105, 0), App.Vector(0.471888, -1.303772, 0), App.Vector(0.469142, -1.315379, 0), App.Vector(0.464859, -1.326569, 0), App.Vector(0.460708, -1.33339, 0), App.Vector(0.458592, -1.336867, 0)], [4, 1, 1, 1, 1, 1, 1, 1, 4], [0, 1.62476404, 3.013233683, 4.135841116, 5.022294843, 5.773838683, 6.511908119, 7.241521057, 8], False, 3, [1, 1, 1, 1, 1, 1, 1, 1, 1, 1, 1], False), False)
sketch5.addGeometry(Part.LineSegment(App.Vector(0.473307, -1.211076, 0), App.Vector(0.473307, -1.201266, 0)), False)
sketch5.addGeometry(Part.LineSegment(App.Vector(0.473307, -1.201266, 0), App.Vector(0.270775, -1.201266, 0)), False)
sketch5.addGeometry(Part.LineSegment(App.Vector(0.270775, -1.201266, 0), App.Vector(0.270775, -1.230538, 0)), False)
sketch5.addGeometry(Part.BSplineCurve([App.Vector(0.279003, -1.331329, 0), App.Vector(0.277881, -1.328451, 0), App.Vector(0.275518, -1.322387, 0), App.Vector(0.27316, -1.312181, 0), App.Vector(0.271909, -1.300556, 0), App.Vector(0.270861, -1.282929, 0), App.Vector(0.270998, -1.259438, 0), App.Vector(0.270851, -1.240294, 0), App.Vector(0.270775, -1.230538, 0)], [4, 1, 1, 1, 1, 1, 4], [0, 0.546101267, 1.150407549, 1.846013188, 2.612602236, 4.273681324, 6], False, 3, [1, 1, 1, 1, 1, 1, 1, 1, 1], False), False)
sketch5.addGeometry(Part.BSplineCurve([App.Vector(0.370143, -1.373418, 0), App.Vector(0.364073, -1.373293, 0), App.Vector(0.352593, -1.373056, 0), App.Vector(0.336473, -1.371423, 0), App.Vector(0.322485, -1.368473, 0), App.Vector(0.310566, -1.364231, 0), App.Vector(0.300321, -1.358545, 0), App.Vector(0.291645, -1.351148, 0), App.Vector(0.284416, -1.341954, 0), App.Vector(0.280839, -1.334932, 0), App.Vector(0.279003, -1.331329, 0)], [4, 1, 1, 1, 1, 1, 1, 1, 4], [0, 1.360206882, 2.572913163, 3.625556313, 4.556697352, 5.39829734, 6.236820169, 7.095269443, 8], False, 3, [1, 1, 1, 1, 1, 1, 1, 1, 1, 1, 1], False), False)
sketch5.addGeometry(Part.BSplineCurve([App.Vector(0.116503, -1.313291, 0), App.Vector(0.114324, -1.316163, 0), App.Vector(0.110087, -1.321748, 0), App.Vector(0.102312, -1.328737, 0), App.Vector(0.093529, -1.333992, 0), App.Vector(0.080266, -1.338885, 0), App.Vector(0.061502, -1.342291, 0), App.Vector(0.045948, -1.342779, 0), App.Vector(0.037706, -1.343038, 0)], [4, 1, 1, 1, 1, 1, 4], [0, 0.736499587, 1.431930083, 2.124087551, 2.817505704, 4.313761825, 6], False, 3, [1, 1, 1, 1, 1, 1, 1, 1, 1], False), False)
sketch5.addGeometry(Part.BSplineCurve([App.Vector(0.129003, -1.222468, 0), App.Vector(0.128964, -1.227637, 0), App.Vector(0.128889, -1.237607, 0), App.Vector(0.12856, -1.251953, 0), App.Vector(0.128146, -1.265095, 0), App.Vector(0.12736, -1.277024, 0), App.Vector(0.126258, -1.287861, 0), App.Vector(0.12405, -1.297528, 0), App.Vector(0.121002, -1.30609, 0), App.Vector(0.117959, -1.310961, 0), App.Vector(0.116503, -1.313291, 0)], [4, 1, 1, 1, 1, 1, 1, 1, 4], [0, 1.335852145, 2.576521239, 3.70858608, 4.733137905, 5.666399747, 6.519473329, 7.291610689, 8], False, 3, [1, 1, 1, 1, 1, 1, 1, 1, 1, 1, 1], False), False)
sketch5.addGeometry(Part.LineSegment(App.Vector(0.129003, -1.222468, 0), App.Vector(0.129003, -1.201266, 0)), False)
sketch5.addGeometry(Part.LineSegment(App.Vector(0.129003, -1.201266, 0), App.Vector(-0.043149, -1.201266, 0)), False)
sketch5.addGeometry(Part.LineSegment(App.Vector(-0.043149, -1.201266, 0), App.Vector(-0.043149, -1.214082, 0)), False)
sketch5.addGeometry(Part.BSplineCurve([App.Vector(-0.032706, -1.313291, 0), App.Vector(-0.03411, -1.310692, 0), App.Vector(-0.036968, -1.305402, 0), App.Vector(-0.039754, -1.296444, 0), App.Vector(-0.041619, -1.286677, 0), App.Vector(-0.042519, -1.275755, 0), App.Vector(-0.042648, -1.263343, 0), App.Vector(-0.043061, -1.248895, 0), App.Vector(-0.043175, -1.232226, 0), App.Vector(-0.043158, -1.220359, 0), App.Vector(-0.043149, -1.214082, 0)], [4, 1, 1, 1, 1, 1, 1, 1, 4], [0, 0.701793737, 1.428304497, 2.221101595, 3.065590151, 4.032579413, 5.175275482, 6.506065907, 8], False, 3, [1, 1, 1, 1, 1, 1, 1, 1, 1, 1, 1], False), False)
sketch5.addGeometry(Part.BSplineCurve([App.Vector(0.037706, -1.343038, 0), App.Vector(0.030923, -1.342748, 0), App.Vector(0.01717, -1.342161, 0), App.Vector(0.000538, -1.337781, 0), App.Vector(-0.01219, -1.332957, 0), App.Vector(-0.020395, -1.327672, 0), App.Vector(-0.027537, -1.321247, 0), App.Vector(-0.030968, -1.315965, 0), App.Vector(-0.032706, -1.313291, 0)], [4, 1, 1, 1, 1, 1, 4], [0, 1.526769075, 3.095745762, 3.853179343, 4.585554278, 5.283929221, 6], False, 3, [1, 1, 1, 1, 1, 1, 1, 1, 1], False), False)
sketch5.addConstraint([
    Sketcher.Constraint("Block", 0),
    Sketcher.Constraint("Block", 1),
    Sketcher.Constraint("Block", 2),
    Sketcher.Constraint("Block", 3),
    Sketcher.Constraint("Block", 4),
    Sketcher.Constraint("Block", 5),
    Sketcher.Constraint("Block", 6),
    Sketcher.Constraint("Block", 9),
    Sketcher.Constraint("Block", 10),
    Sketcher.Constraint("Block", 11),
    Sketcher.Constraint("Block", 12),
    Sketcher.Constraint("Block", 13),
    Sketcher.Constraint("Block", 14),
    Sketcher.Constraint("Block", 15),
    Sketcher.Constraint("Block", 16),
    Sketcher.Constraint("Block", 19),
    Sketcher.Constraint("Block", 54),
    Sketcher.Constraint("Block", 55),
    Sketcher.Constraint("Block", 57),
    Sketcher.Constraint("Block", 58),
    Sketcher.Constraint("Block", 59),
    Sketcher.Constraint("Block", 63),
    Sketcher.Constraint("Block", 64),
    Sketcher.Constraint("Block", 65),
    Sketcher.Constraint("Block", 69),
    Sketcher.Constraint("Block", 70),
    Sketcher.Constraint("Block", 71),
    Sketcher.Constraint("Block", 72),
    Sketcher.Constraint("Block", 76),
    Sketcher.Constraint("Block", 77),
    Sketcher.Constraint("Coincident", 6, 1, 7, 1),
    Sketcher.Constraint("Coincident", 7, 2, 8, 1),
    Sketcher.Constraint("Coincident", 8, 2, 9, 2),
    Sketcher.Constraint("Coincident", 16, 1, 17, 1),
    Sketcher.Constraint("Coincident", 17, 2, 18, 1),
    Sketcher.Constraint("Coincident", 18, 2, 19, 2),
    Sketcher.Constraint("Coincident", 55, 1, 56, 1),
    Sketcher.Constraint("Coincident", 56, 2, 57, 2),
    Sketcher.Constraint("Coincident", 59, 1, 60, 1),
    Sketcher.Constraint("Coincident", 60, 2, 61, 1),
    Sketcher.Constraint("Coincident", 61, 2, 62, 1),
    Sketcher.Constraint("Coincident", 62, 2, 63, 2),
    Sketcher.Constraint("Coincident", 65, 1, 66, 1),
    Sketcher.Constraint("Coincident", 66, 2, 67, 1),
    Sketcher.Constraint("Coincident", 67, 2, 68, 1),
    Sketcher.Constraint("Coincident", 68, 2, 69, 2),
    Sketcher.Constraint("Coincident", 72, 1, 73, 1),
    Sketcher.Constraint("Coincident", 73, 2, 74, 1),
    Sketcher.Constraint("Coincident", 74, 2, 75, 1),
    Sketcher.Constraint("Coincident", 75, 2, 76, 2),
    Sketcher.Constraint("Vertical", 7),
    Sketcher.Constraint("Horizontal", 8),
    Sketcher.Constraint("Vertical", 17),
    Sketcher.Constraint("Horizontal", 18),
    Sketcher.Constraint("Vertical", 20),
    Sketcher.Constraint("Horizontal", 21),
    Sketcher.Constraint("Vertical", 22),
    Sketcher.Constraint("Horizontal", 23),
    Sketcher.Constraint("Vertical", 24),
    Sketcher.Constraint("Horizontal", 25),
    Sketcher.Constraint("Vertical", 26),
    Sketcher.Constraint("Horizontal", 27),
    Sketcher.Constraint("Vertical", 28),
    Sketcher.Constraint("Horizontal", 29),
    Sketcher.Constraint("Vertical", 30),
    Sketcher.Constraint("Horizontal", 31),
    Sketcher.Constraint("Vertical", 32),
    Sketcher.Constraint("Horizontal", 33),
    Sketcher.Constraint("Vertical", 34),
    Sketcher.Constraint("Horizontal", 36),
    Sketcher.Constraint("Vertical", 37),
    Sketcher.Constraint("Horizontal", 38),
    Sketcher.Constraint("Vertical", 39),
    Sketcher.Constraint("Horizontal", 41),
    Sketcher.Constraint("Vertical", 42),
    Sketcher.Constraint("Horizontal", 43),
    Sketcher.Constraint("Vertical", 44),
    Sketcher.Constraint("Horizontal", 45),
    Sketcher.Constraint("Vertical", 46),
    Sketcher.Constraint("Horizontal", 47),
    Sketcher.Constraint("Vertical", 48),
    Sketcher.Constraint("Horizontal", 49),
    Sketcher.Constraint("Vertical", 50),
    Sketcher.Constraint("Horizontal", 51),
    Sketcher.Constraint("Vertical", 52),
    Sketcher.Constraint("Horizontal", 53),
    Sketcher.Constraint("Vertical", 60),
    Sketcher.Constraint("Horizontal", 61),
    Sketcher.Constraint("Vertical", 62),
    Sketcher.Constraint("Vertical", 66),
    Sketcher.Constraint("Horizontal", 67),
    Sketcher.Constraint("Vertical", 68),
    Sketcher.Constraint("Vertical", 73),
    Sketcher.Constraint("Horizontal", 74),
    Sketcher.Constraint("Vertical", 75),
    Sketcher.Constraint("DistanceX", 53, 1, 53, 2, Q("0.8 mm")),
    Sketcher.Constraint("DistanceX", 33, 2, 33, 1, Q("0.151899 mm")),
    Sketcher.Constraint("DistanceX", 36, 2, 36, 1, Q("0.151899 mm")),
    Sketcher.Constraint("DistanceX", 38, 1, 38, 2, Q("0.151899 mm")),
    Sketcher.Constraint("DistanceX", 41, 1, 41, 2, Q("0.151899 mm")),
    Sketcher.Constraint("DistanceX", 43, 2, 43, 1, Q("0.151899 mm")),
    Sketcher.Constraint("DistanceX", 47, 2, 47, 1, Q("0.151899 mm")),
    Sketcher.Constraint("DistanceX", 51, 2, 51, 1, Q("0.151899 mm")),
    Sketcher.Constraint("DistanceX", 45, 2, 45, 1, Q("0.202532 mm")),
    Sketcher.Constraint("DistanceY", 20, 2, 20, 1, Q("0.324051 mm")),
    Sketcher.Constraint("DistanceY", 22, 1, 22, 2, Q("0.091139 mm")),
    Sketcher.Constraint("DistanceY", 24, 2, 24, 1, Q("0.091139 mm")),
    Sketcher.Constraint("DistanceY", 26, 1, 26, 2, Q("0.324051 mm")),
    Sketcher.Constraint("DistanceY", 28, 2, 28, 1, Q("0.091139 mm")),
    Sketcher.Constraint("DistanceY", 46, 2, 46, 1, Q("0.232911 mm")),
    Sketcher.Constraint("DistanceY", 48, 1, 48, 2, Q("0.232911 mm")),
    Sketcher.Constraint("DistanceY", 66, 1, 66, 2, Q("0.00981 mm")),
    Sketcher.Constraint("DistanceX", 33, 2, 20, 2, Q("0.151899 mm")),
    Sketcher.Constraint("DistanceX", 25, 2, 35, 2, Q("0.151899 mm")),
    Sketcher.Constraint("DistanceX", 36, 2, 33, 2, Q("0.648101 mm")),
    Sketcher.Constraint("DistanceY", 39, 2, 24, 2, Q("0.290601 mm")),
    Sketcher.Constraint("DistanceX", 33, 2, 42, 2, Q("0.151899 mm")),
    Sketcher.Constraint("DistanceX", 60, 2, 50, 2, Q("0.151899 mm")),
    Sketcher.Constraint("DistanceX", 21, 2, 21, 1, Q("0.141772 mm")),
    Sketcher.Constraint("DistanceX", 23, 2, 23, 1, Q("0.516456 mm")),
    Sketcher.Constraint("DistanceX", 27, 1, 27, 2, Q("0.141772 mm")),
    Sketcher.Constraint("DistanceX", 29, 1, 29, 2, Q("0.516456 mm")),
    Sketcher.Constraint("DistanceY", 32, 2, 32, 1, Q("0.455696 mm")),
    Sketcher.Constraint("DistanceY", 34, 1, 34, 2, Q("0.286392 mm")),
    Sketcher.Constraint("DistanceY", 37, 1, 37, 2, Q("0.435443 mm")),
    Sketcher.Constraint("DistanceY", 39, 2, 39, 1, Q("0.266297 mm")),
    Sketcher.Constraint("DistanceY", 42, 2, 42, 1, Q("0.394937 mm")),
    Sketcher.Constraint("DistanceY", 44, 1, 44, 2, Q("0.253165 mm")),
    Sketcher.Constraint("DistanceY", 50, 2, 50, 1, Q("0.253165 mm")),
    Sketcher.Constraint("DistanceY", 60, 1, 60, 2, Q("0.209177 mm")),
    Sketcher.Constraint("DistanceY", 73, 1, 73, 2, Q("0.021203 mm")),
    Sketcher.Constraint("DistanceY", -1, 1, 20, 2, Q("0.111139 mm")),
    Sketcher.Constraint("DistanceY", 34, 2, -1, 1, Q("0.072342 mm")),
    Sketcher.Constraint("DistanceY", 52, 2, -1, 1, Q("0.403291 mm")),
])
pad5 = body.newObject("PartDesign::Pad", "Pad004")
pad5.Profile = sketch5
pad5.Length = 0.01
pad5.Reversed = True

doc.recompute()
